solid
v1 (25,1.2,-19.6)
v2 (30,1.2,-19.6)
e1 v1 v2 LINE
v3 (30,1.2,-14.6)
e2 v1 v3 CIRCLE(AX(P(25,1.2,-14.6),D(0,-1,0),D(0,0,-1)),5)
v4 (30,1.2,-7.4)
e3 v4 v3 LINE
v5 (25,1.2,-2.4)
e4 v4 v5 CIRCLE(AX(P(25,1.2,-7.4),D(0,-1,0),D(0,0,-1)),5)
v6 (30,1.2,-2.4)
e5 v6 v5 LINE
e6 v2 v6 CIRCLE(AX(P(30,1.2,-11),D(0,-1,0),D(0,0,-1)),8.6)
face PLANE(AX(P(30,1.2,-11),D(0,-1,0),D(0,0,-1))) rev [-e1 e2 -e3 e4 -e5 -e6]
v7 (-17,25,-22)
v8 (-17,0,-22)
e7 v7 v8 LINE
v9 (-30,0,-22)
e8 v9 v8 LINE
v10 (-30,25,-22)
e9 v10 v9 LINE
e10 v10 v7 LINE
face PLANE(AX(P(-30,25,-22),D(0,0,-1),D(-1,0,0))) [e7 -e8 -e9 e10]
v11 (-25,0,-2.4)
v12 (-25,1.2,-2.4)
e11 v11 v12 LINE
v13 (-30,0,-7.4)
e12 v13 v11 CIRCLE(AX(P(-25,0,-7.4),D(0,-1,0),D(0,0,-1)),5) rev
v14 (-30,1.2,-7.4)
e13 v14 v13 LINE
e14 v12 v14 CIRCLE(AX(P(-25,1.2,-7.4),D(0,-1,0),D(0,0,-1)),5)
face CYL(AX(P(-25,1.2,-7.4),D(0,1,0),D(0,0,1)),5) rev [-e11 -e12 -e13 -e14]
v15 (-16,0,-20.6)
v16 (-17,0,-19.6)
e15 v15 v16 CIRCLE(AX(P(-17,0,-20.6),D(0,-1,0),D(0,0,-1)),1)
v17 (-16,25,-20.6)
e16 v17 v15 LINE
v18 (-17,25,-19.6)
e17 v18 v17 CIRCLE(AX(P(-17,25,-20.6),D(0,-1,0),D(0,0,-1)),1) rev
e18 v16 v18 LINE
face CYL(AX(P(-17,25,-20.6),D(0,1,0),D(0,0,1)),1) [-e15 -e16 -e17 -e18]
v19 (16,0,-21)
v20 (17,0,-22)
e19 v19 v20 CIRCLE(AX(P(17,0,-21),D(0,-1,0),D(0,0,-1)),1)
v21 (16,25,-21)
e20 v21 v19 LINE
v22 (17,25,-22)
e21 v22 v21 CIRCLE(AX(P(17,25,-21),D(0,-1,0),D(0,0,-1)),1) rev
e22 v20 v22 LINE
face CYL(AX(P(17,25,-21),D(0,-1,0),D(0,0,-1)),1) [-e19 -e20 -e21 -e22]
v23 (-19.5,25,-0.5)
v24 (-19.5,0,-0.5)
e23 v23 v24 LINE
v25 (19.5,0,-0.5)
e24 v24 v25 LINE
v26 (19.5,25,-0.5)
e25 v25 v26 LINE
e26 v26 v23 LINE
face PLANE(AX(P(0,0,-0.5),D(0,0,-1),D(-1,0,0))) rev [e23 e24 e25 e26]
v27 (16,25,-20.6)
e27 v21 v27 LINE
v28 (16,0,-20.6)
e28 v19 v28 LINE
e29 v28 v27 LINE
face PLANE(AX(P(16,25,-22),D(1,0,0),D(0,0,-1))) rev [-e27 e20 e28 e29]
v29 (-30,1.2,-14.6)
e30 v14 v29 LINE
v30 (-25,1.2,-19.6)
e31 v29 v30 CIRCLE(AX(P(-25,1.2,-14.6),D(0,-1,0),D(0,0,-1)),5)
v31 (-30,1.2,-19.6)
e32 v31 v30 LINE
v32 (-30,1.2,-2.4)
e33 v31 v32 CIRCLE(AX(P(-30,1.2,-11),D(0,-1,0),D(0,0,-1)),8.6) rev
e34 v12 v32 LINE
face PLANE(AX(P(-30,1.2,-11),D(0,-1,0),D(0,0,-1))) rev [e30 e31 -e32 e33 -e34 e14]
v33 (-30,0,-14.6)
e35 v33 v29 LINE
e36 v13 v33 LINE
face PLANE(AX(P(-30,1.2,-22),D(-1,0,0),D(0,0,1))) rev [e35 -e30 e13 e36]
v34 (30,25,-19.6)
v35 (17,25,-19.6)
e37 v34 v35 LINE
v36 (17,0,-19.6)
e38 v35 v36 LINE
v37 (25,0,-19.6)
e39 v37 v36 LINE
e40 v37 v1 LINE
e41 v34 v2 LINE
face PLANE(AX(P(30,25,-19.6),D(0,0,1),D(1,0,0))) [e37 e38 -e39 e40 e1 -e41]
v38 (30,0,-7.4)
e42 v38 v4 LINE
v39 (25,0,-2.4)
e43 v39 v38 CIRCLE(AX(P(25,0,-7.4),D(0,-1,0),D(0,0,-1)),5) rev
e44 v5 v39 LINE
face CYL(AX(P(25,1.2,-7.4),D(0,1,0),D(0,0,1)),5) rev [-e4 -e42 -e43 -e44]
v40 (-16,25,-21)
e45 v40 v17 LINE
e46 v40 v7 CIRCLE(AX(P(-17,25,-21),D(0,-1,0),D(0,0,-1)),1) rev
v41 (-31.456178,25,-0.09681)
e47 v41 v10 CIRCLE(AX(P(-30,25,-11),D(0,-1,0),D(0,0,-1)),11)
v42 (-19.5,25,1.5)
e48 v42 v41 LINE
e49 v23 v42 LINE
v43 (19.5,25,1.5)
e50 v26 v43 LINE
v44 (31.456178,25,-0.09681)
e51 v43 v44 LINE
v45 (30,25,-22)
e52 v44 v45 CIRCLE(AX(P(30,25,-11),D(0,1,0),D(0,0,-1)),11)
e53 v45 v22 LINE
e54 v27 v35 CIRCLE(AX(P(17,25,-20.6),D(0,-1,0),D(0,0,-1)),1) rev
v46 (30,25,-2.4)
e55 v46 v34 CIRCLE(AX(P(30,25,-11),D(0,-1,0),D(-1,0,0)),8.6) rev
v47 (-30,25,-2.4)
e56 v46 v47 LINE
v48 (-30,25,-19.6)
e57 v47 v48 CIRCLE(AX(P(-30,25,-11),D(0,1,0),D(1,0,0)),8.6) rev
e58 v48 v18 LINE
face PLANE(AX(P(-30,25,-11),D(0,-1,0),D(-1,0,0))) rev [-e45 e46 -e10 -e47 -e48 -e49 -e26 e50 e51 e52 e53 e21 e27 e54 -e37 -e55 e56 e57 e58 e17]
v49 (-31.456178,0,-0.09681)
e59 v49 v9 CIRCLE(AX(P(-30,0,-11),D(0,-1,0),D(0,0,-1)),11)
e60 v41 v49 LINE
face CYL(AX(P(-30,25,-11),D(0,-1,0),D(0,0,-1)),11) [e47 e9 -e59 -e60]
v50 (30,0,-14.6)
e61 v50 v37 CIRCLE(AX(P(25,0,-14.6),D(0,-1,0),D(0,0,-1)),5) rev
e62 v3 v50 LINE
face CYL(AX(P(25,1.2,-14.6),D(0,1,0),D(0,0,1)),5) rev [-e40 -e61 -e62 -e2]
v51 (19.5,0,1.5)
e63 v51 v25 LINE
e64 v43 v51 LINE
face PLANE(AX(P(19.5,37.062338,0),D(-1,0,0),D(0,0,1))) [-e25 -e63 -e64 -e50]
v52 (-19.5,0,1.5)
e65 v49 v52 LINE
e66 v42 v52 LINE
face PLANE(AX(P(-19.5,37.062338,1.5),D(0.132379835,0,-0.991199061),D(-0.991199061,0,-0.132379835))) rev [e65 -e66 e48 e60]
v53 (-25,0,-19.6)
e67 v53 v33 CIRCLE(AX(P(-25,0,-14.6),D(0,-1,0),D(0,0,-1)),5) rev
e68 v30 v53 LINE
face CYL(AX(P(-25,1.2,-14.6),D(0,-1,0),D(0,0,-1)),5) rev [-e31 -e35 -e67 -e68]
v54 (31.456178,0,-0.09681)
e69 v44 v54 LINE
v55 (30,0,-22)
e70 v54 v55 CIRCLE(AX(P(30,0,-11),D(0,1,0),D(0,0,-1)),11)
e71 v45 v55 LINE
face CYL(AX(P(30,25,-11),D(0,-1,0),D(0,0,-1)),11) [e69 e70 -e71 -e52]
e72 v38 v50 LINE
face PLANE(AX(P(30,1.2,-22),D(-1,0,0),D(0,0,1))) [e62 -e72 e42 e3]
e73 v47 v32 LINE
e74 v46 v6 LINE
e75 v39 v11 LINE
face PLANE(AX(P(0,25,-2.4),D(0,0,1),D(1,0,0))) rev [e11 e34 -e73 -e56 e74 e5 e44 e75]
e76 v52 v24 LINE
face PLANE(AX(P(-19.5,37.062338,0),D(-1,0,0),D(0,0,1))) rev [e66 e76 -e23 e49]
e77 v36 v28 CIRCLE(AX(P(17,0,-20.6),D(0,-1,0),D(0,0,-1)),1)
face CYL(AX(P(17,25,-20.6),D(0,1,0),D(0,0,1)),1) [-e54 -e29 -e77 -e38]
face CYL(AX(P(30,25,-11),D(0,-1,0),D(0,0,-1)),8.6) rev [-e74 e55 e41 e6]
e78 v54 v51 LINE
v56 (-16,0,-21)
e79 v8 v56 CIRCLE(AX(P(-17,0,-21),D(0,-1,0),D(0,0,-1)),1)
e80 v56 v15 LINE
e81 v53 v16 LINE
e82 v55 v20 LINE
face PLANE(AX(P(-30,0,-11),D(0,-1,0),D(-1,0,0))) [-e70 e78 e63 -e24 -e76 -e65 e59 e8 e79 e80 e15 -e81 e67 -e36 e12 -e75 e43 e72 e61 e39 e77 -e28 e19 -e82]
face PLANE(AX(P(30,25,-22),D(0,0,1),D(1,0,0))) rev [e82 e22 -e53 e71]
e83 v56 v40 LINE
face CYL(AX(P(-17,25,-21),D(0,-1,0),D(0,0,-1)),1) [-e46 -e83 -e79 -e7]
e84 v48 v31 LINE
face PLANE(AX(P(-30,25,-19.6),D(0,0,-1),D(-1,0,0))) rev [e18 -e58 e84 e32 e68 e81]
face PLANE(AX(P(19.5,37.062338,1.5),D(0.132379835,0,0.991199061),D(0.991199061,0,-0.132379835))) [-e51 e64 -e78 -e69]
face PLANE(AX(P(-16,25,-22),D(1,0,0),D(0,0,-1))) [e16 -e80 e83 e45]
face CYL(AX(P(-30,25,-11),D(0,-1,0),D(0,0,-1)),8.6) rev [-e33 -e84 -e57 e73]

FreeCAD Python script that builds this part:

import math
import FreeCAD as App
import Part
import Sketcher

V = App.Vector
Q = App.Units.Quantity


def edges_at(feature, points):
    """Names of the edges that pass closest to the given points."""
    edges = feature.Shape.Edges
    near = lambda p: min(range(len(edges)), key=lambda i: edges[i].distToShape(Part.Vertex(*p))[0])
    return sorted({f"Edge{near(p) + 1}" for p in points})


def add_polygon(sketch, points):
    """Adds a closed chain of lines whose ends are joined by coincident constraints."""
    first, n = sketch.GeometryCount, len(points)
    for a, b in zip(points, points[1:] + points[:1]):
        sketch.addGeometry(Part.LineSegment(App.Vector(*a, 0), App.Vector(*b, 0)), False)
    for i in range(n):
        sketch.addConstraint(Sketcher.Constraint("Coincident", first + i, 2, first + (i + 1) % n, 1))

doc = App.newDocument("Part")
params = doc.addObject("Spreadsheet::Sheet", "Params")
for row, (alias, value) in enumerate([
    ("sketch1_radius", "11 mm"),
    ("sketch1_radius2", "8.6 mm"),
    ("sketch1_width", "30 mm"),
    ("sketch1_width2", "14 mm"),
    ("pad1_length", "25 mm"),
    ("sketch2_radius", "11 mm"),
    ("pad2_length", "1.2 mm"),
    ("sketch3_height", "1.5 mm"),
    ("pad3_length", "25 mm"),
    ("fillet_radius", "1 mm"),
    ("fillet2_radius", "5 mm"),
    ("sketch4_width", "39 mm"),
    ("sketch4_height", "25 mm"),
    ("pocket1_length", "0.5 mm"),
], start=1):
    params.set(f"A{row}", alias)
    params.set(f"B{row}", "=" + value)
    params.setAlias(f"B{row}", alias)

body = doc.addObject("PartDesign::Body", "Body")

sketch1 = body.newObject("Sketcher::SketchObject", "Sketch")
sketch1.AttachmentSupport = (doc.getObject("XZ_Plane"), [""])
sketch1.MapMode = "FlatFace"
sketch1.addGeometry([
    Part.LineSegment(V(-30, 0, 0), V(0, 0, 0)),
    Part.LineSegment(V(0, 0, 0), V(0, -2.4, 0)),
    Part.LineSegment(V(0, -2.4, 0), V(-30, -2.4, 0)),
    Part.ArcOfCircle(Part.Circle(V(-30, -11, 0), V(0, 0, 1), 8.6), math.radians(90), math.radians(270)),
    Part.LineSegment(V(-30, -19.6, 0), V(-16, -19.6, 0)),
    Part.LineSegment(V(-16, -19.6, 0), V(-16, -22, 0)),
    Part.LineSegment(V(-16, -22, 0), V(-30, -22, 0)),
    Part.ArcOfCircle(Part.Circle(V(-30, -11, 0), V(0, 0, 1), 11), math.radians(90), math.radians(270)),
], False)
sketch1.addConstraint([
    Sketcher.Constraint("Coincident", 0, 2, 1, 1),
    Sketcher.Constraint("Coincident", 1, 2, 2, 1),
    Sketcher.Constraint("Tangent", 2, 2, 3, 1),
    Sketcher.Constraint("Tangent", 3, 2, 4, 1),
    Sketcher.Constraint("Coincident", 4, 2, 5, 1),
    Sketcher.Constraint("Coincident", 5, 2, 6, 1),
    Sketcher.Constraint("Tangent", 6, 2, 7, 2),
    Sketcher.Constraint("Tangent", 7, 1, 0, 1),
    Sketcher.Constraint("Horizontal", 0),
    Sketcher.Constraint("Vertical", 1),
    Sketcher.Constraint("Horizontal", 2),
    Sketcher.Constraint("Horizontal", 4),
    Sketcher.Constraint("Vertical", 5),
    Sketcher.Constraint("Horizontal", 6),
    Sketcher.Constraint("Coincident", 0, 2, -1, 1),
    Sketcher.Constraint("Coincident", 7, 3, 3, 3),
    Sketcher.Constraint("Radius", 7, Q("11 mm")),
    Sketcher.Constraint("Radius", 3, Q("8.6 mm")),
    Sketcher.Constraint("DistanceX", 0, 1, 0, 2, Q("30 mm")),
    Sketcher.Constraint("DistanceX", 4, 1, 4, 2, Q("14 mm")),
])
sketch1.setExpression("Constraints[16]", "Params.sketch1_radius")
sketch1.setExpression("Constraints[17]", "Params.sketch1_radius2")
sketch1.setExpression("Constraints[18]", "Params.sketch1_width")
sketch1.setExpression("Constraints[19]", "Params.sketch1_width2")
pad1 = body.newObject("PartDesign::Pad", "Pad")
pad1.Profile = sketch1
pad1.setExpression("Length", "Params.pad1_length")
pad1.Reversed = True

sketch2 = body.newObject("Sketcher::SketchObject", "Sketch001")
sketch2.AttachmentSupport = (doc.getObject("XZ_Plane"), [""])
sketch2.MapMode = "FlatFace"
sketch2.addGeometry([
    Part.LineSegment(V(-30, 0, 0), V(-30, -22, 0)),
    Part.ArcOfCircle(Part.Circle(V(-30, -11, 0), V(0, 0, 1), 11), math.radians(90), math.radians(270)),
], False)
sketch2.addConstraint([
    Sketcher.Constraint("Coincident", 0, 1, 1, 1),
    Sketcher.Constraint("Coincident", 1, 2, 0, 2),
    Sketcher.Constraint("Vertical", 0),
    Sketcher.Constraint("PointOnObject", 0, 1, -1),
    Sketcher.Constraint("Vertical", 1, 3, 0, 1),
    Sketcher.Constraint("Radius", 1, Q("11 mm")),
    Sketcher.Constraint("DistanceX", 1, 3, -1, 1, Q("30 mm")),
])
sketch2.setExpression("Constraints[5]", "Params.sketch2_radius")
pad2 = body.newObject("PartDesign::Pad", "Pad001")
pad2.Profile = sketch2
pad2.setExpression("Length", "Params.pad2_length")
pad2.Reversed = True

sketch3 = body.newObject("Sketcher::SketchObject", "Sketch002")
sketch3.AttachmentSupport = (doc.getObject("XZ_Plane"), [""])
sketch3.MapMode = "FlatFace"
add_polygon(sketch3, [(-19.5, 1.5), (-19.5, 0), (-31.5, -0.1)])
sketch3.addConstraint([
    Sketcher.Constraint("Vertical", 0),
    Sketcher.Constraint("PointOnObject", 0, 2, -1),
    Sketcher.Constraint("DistanceY", 0, 2, 0, 1, Q("1.5 mm")),
    Sketcher.Constraint("DistanceX", 0, 2, -1, 1, Q("19.5 mm")),
    Sketcher.Constraint("Distance", 1, Q("11.95657 mm")),
    Sketcher.Constraint("Distance", 2, Q("12.062338 mm")),
])
sketch3.setExpression("Constraints[5]", "Params.sketch3_height")
pad3 = body.newObject("PartDesign::Pad", "Pad002")
pad3.Profile = sketch3
pad3.setExpression("Length", "Params.pad3_length")
pad3.Reversed = True
doc.recompute()

mirrored = body.newObject("PartDesign::Mirrored", "Mirrored")
mirrored.Originals = [pad1, pad2, pad3]
mirrored.MirrorPlane = (doc.getObject("YZ_Plane"), [""])
body.Tip = mirrored
doc.recompute()

fillet = body.newObject("PartDesign::Fillet", "Fillet")
fillet.Base = (mirrored, edges_at(mirrored, [
    (-16, 12.5, -22),
    (-16, 12.5, -19.6),
    (16, 12.5, -19.6),
    (16, 12.5, -22),
]))
fillet.setExpression("Radius", "Params.fillet_radius")
doc.recompute()

fillet2 = body.newObject("PartDesign::Fillet", "Fillet001")
fillet2.Base = (fillet, edges_at(fillet, [
    (-30, 0.6, -19.6),
    (-30, 0.6, -2.4),
    (30, 0.6, -19.6),
    (30, 0.6, -2.4),
]))
fillet2.setExpression("Radius", "Params.fillet2_radius")

sketch4 = body.newObject("Sketcher::SketchObject", "Sketch003")
sketch4.AttachmentSupport = (doc.getObject("XY_Plane"), [""])
sketch4.MapMode = "FlatFace"
add_polygon(sketch4, [(-20, 25), (-20, 0), (20, 0), (20, 25)])
sketch4.addConstraint([
    Sketcher.Constraint("Vertical", 0),
    Sketcher.Constraint("Horizontal", 1),
    Sketcher.Constraint("Vertical", 2),
    Sketcher.Constraint("Horizontal", 3),
    Sketcher.Constraint("Symmetric", 0, 2, 1, 2, -1, 1),
    Sketcher.Constraint("DistanceX", 1, 1, 1, 2, Q("39 mm")),
    Sketcher.Constraint("DistanceY", 0, 2, 0, 1, Q("25 mm")),
])
sketch4.setExpression("Constraints[9]", "Params.sketch4_width")
sketch4.setExpression("Constraints[10]", "Params.sketch4_height")
pocket1 = body.newObject("PartDesign::Pocket", "Pocket")
pocket1.Profile = sketch4
pocket1.setExpression("Length", "Params.pocket1_length")

doc.recompute()
